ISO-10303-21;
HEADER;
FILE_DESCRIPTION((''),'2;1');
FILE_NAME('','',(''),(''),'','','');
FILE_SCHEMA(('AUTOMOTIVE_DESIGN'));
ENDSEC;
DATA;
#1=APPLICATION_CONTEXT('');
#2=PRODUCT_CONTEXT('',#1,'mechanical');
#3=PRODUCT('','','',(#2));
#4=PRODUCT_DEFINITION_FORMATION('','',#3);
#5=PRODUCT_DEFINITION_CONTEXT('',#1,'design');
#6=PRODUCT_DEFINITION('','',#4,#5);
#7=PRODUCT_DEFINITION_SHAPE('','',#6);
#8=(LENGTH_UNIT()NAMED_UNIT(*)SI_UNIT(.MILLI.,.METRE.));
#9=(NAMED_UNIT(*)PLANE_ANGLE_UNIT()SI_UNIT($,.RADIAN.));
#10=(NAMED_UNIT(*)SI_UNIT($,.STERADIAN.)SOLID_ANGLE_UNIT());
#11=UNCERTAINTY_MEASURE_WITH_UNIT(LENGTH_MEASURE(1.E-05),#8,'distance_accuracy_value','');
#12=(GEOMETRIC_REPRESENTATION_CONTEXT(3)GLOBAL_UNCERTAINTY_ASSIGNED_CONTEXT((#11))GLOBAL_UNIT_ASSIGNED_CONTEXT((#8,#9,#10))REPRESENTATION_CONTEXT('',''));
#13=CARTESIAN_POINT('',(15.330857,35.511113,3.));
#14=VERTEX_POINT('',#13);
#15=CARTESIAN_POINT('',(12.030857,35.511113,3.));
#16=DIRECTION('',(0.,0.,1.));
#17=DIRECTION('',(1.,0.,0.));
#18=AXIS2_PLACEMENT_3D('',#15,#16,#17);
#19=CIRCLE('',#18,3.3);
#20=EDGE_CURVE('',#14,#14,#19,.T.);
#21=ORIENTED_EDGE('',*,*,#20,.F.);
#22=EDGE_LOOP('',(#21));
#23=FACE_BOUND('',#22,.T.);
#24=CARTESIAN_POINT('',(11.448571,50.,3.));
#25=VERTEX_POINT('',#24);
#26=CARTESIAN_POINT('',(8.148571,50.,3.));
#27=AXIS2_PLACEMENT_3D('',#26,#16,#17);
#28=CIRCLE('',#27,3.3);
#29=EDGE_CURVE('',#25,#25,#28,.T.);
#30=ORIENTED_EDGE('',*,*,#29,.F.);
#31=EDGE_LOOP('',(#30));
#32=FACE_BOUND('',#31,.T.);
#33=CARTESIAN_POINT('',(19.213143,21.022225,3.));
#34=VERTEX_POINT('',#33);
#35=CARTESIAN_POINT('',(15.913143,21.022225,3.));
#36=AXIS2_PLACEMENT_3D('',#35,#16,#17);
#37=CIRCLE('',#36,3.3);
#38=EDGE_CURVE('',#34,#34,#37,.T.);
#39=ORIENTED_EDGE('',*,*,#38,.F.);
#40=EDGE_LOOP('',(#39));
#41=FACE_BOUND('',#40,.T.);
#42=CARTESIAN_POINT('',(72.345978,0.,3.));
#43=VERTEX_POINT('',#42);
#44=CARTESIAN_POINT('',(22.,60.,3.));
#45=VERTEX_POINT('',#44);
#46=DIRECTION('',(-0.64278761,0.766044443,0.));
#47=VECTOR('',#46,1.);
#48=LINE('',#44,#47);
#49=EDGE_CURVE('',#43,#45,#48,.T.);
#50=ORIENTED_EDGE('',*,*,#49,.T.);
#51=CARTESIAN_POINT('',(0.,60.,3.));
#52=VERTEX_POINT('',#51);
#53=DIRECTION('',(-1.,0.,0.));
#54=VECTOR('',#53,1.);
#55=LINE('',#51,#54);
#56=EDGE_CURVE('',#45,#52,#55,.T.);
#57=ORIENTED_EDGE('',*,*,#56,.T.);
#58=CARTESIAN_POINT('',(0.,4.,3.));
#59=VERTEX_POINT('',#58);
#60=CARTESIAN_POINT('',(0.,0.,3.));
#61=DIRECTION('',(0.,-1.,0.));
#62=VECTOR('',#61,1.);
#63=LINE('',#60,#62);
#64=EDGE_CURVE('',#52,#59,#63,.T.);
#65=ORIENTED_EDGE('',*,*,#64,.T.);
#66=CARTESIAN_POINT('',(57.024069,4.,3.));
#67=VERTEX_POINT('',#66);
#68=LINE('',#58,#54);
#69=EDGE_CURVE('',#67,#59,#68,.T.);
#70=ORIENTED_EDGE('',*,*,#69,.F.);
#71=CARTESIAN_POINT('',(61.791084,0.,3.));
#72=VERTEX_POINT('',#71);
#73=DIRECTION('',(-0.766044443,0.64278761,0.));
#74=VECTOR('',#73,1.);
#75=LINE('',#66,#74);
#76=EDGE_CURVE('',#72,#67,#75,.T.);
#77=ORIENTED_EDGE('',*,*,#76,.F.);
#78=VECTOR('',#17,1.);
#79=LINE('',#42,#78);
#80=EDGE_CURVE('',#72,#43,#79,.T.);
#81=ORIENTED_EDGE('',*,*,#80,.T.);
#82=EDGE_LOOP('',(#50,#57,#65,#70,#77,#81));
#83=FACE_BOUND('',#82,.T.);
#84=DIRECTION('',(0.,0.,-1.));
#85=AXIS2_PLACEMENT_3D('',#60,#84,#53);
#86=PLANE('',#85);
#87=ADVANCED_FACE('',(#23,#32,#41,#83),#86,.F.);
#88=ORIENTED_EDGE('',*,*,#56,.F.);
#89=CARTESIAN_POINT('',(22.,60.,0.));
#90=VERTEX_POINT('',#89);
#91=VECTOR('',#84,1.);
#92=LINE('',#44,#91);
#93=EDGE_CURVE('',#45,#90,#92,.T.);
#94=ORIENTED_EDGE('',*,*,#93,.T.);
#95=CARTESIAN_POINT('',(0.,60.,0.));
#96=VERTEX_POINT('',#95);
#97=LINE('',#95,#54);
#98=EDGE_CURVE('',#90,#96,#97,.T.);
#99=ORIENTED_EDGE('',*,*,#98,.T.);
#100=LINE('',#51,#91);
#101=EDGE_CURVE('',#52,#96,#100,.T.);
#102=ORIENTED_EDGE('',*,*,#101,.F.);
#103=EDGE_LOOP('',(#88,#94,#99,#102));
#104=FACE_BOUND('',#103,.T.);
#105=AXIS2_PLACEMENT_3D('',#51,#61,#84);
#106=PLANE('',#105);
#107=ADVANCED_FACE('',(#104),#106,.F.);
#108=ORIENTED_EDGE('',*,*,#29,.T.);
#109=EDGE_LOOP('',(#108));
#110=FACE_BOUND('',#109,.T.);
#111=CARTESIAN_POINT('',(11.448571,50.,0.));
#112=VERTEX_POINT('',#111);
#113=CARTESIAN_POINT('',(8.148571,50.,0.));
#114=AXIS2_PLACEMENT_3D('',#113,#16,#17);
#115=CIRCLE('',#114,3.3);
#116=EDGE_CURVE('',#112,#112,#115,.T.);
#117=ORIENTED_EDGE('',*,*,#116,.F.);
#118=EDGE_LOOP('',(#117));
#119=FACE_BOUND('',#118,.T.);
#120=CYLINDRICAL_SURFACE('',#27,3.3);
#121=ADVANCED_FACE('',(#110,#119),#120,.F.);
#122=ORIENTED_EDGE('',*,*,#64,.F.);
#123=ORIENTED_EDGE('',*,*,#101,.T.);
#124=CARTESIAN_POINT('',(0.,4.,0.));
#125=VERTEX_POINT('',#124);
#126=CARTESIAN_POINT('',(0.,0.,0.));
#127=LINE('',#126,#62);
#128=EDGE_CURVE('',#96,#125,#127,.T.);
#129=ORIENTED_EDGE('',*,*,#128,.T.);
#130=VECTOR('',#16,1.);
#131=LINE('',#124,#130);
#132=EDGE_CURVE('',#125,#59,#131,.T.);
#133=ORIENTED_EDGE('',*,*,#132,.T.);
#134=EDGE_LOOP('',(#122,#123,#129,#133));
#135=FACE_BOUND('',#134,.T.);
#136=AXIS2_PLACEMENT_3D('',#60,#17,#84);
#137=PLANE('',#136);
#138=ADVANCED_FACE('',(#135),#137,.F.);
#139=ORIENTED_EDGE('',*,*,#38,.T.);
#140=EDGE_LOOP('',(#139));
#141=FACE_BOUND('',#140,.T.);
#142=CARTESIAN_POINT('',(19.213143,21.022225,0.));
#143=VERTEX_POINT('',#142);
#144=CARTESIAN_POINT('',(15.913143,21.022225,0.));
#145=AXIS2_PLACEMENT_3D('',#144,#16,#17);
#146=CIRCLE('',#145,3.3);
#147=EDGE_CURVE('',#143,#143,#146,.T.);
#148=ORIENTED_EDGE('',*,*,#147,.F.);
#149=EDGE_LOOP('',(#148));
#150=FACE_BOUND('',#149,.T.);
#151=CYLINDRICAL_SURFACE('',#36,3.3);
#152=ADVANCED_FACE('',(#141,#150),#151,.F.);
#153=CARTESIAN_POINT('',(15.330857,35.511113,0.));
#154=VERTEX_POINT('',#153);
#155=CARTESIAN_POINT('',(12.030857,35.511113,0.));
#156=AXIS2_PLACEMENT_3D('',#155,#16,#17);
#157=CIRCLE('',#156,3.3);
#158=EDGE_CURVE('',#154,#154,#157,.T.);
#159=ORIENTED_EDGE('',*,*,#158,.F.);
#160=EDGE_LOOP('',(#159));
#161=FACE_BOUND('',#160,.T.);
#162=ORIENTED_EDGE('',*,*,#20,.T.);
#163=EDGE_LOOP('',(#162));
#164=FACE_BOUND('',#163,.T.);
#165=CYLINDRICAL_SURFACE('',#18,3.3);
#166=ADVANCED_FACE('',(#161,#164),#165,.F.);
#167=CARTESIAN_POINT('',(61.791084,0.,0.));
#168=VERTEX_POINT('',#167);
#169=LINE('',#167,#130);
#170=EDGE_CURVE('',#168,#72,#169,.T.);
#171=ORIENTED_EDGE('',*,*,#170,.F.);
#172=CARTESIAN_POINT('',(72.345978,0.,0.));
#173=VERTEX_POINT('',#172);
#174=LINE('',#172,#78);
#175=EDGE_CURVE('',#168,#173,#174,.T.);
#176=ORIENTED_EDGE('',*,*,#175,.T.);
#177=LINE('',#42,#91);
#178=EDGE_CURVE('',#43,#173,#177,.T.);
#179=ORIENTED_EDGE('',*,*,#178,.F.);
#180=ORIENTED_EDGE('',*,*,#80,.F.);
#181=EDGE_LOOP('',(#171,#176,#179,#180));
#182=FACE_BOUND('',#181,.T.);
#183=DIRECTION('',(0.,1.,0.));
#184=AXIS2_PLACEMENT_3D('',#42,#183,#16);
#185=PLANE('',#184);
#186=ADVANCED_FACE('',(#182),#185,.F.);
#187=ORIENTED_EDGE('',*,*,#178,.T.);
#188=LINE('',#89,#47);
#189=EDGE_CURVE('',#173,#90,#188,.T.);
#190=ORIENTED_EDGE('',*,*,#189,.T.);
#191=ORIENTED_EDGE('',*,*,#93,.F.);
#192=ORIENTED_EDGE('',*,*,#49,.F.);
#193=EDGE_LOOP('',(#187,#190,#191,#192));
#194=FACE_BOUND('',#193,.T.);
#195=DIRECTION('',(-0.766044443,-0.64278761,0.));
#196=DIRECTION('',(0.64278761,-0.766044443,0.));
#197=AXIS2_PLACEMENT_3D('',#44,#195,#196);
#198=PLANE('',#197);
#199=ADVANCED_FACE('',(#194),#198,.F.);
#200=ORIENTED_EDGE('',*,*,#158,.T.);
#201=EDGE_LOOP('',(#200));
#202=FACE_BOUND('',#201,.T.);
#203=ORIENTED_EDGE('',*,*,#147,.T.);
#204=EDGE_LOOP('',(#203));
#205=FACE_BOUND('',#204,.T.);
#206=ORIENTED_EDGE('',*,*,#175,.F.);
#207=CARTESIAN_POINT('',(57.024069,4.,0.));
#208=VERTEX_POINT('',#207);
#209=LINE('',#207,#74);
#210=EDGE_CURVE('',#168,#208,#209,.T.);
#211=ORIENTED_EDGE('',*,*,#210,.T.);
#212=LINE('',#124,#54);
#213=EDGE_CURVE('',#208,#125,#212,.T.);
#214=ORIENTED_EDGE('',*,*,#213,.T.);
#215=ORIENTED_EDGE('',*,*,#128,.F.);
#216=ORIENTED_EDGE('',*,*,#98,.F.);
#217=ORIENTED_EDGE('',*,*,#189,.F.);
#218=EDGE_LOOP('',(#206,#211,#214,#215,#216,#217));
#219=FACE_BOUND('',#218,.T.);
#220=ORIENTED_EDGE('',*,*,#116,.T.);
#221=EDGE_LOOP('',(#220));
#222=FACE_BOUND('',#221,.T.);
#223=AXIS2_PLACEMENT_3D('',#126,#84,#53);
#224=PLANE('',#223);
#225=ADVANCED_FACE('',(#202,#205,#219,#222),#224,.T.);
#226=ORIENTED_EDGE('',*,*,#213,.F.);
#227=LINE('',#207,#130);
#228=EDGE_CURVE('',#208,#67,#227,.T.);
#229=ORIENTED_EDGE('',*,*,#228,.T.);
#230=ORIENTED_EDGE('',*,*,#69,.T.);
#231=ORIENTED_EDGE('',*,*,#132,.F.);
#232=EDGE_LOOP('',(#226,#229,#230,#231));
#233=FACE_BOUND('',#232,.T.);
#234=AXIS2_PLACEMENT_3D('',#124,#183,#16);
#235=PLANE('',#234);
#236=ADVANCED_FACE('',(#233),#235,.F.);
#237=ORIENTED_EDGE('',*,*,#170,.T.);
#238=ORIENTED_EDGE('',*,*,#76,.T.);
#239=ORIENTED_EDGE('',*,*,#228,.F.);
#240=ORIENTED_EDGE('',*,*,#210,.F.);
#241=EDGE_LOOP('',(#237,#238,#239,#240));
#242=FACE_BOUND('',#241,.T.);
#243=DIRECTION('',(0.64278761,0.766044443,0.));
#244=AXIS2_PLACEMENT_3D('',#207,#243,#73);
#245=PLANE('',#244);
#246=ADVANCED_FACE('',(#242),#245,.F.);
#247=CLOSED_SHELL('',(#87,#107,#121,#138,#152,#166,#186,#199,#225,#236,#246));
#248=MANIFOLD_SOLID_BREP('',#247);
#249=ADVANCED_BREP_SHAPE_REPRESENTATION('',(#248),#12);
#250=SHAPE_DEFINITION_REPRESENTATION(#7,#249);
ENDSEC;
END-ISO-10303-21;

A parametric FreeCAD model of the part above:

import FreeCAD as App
import Part
import Sketcher
from FreeCAD import Vector
Q = App.Units.Quantity

doc = App.newDocument("Part")
body = doc.addObject("PartDesign::Body", "Body")

# Sketch on XY plane
sketch1 = body.newObject("Sketcher::SketchObject", "Sketch")
sketch1.AttachmentSupport = (doc.getObject("XY_Plane"), [""])
sketch1.MapMode = "FlatFace"
sketch1.addGeometry(Part.LineSegment(Vector(0, 60, 0), Vector(0, 0, 0)), False)
sketch1.addGeometry(Part.LineSegment(Vector(0, 0, 0), Vector(72, 0, 0)), False)
sketch1.addGeometry(Part.LineSegment(Vector(72, 0, 0), Vector(22, 60, 0)), False)
sketch1.addGeometry(Part.LineSegment(Vector(22, 60, 0), Vector(0, 60, 0)), False)
sketch1.addConstraint(Sketcher.Constraint("Coincident", 0, 2, 1, 1))
sketch1.addConstraint(Sketcher.Constraint("Coincident", 1, 2, 2, 1))
sketch1.addConstraint(Sketcher.Constraint("Coincident", 2, 2, 3, 1))
sketch1.addConstraint(Sketcher.Constraint("Coincident", 3, 2, 0, 1))
sketch1.addConstraint(Sketcher.Constraint("Vertical", 0))
sketch1.addConstraint(Sketcher.Constraint("Horizontal", 1))
sketch1.addConstraint(Sketcher.Constraint("Horizontal", 3))
sketch1.addConstraint(Sketcher.Constraint("Coincident", 0, 2, -1, 1))
sketch1.addConstraint(Sketcher.Constraint("DistanceX", 3, 2, 3, 1, 22.0))
sketch1.addConstraint(Sketcher.Constraint("DistanceY", 0, 2, 0, 1, 60.0))
sketch1.addConstraint(Sketcher.Constraint("Angle", 2, Q("130 deg")))
pad1 = body.newObject("PartDesign::Pad", "Pad")
pad1.Profile = sketch1
pad1.Length = 3

# Sketch on XY plane
sketch2 = body.newObject("Sketcher::SketchObject", "Sketch001")
sketch2.AttachmentSupport = (doc.getObject("XY_Plane"), [""])
sketch2.MapMode = "FlatFace"
sketch2.AttachmentOffset = App.Placement(Vector(0, 0, 3), App.Rotation())
sketch2.addGeometry(Part.Circle(Vector(15.9, 21, 0), Vector(0, 0, 1), 3.3), False)
sketch2.addGeometry(Part.Circle(Vector(12, 35.5, 0), Vector(0, 0, 1), 3.3), False)
sketch2.addGeometry(Part.Circle(Vector(8.1, 50, 0), Vector(0, 0, 1), 3.3), False)
sketch2.addConstraint(Sketcher.Constraint("Equal", 0, 1))
sketch2.addConstraint(Sketcher.Constraint("Equal", 1, 2))
sketch2.addConstraint(Sketcher.Constraint("Diameter", 0, 6.6))
sketch2.addConstraint(Sketcher.Constraint("DistanceY", -1, 1, 2, 3, 50.0))
sketch2.addConstraint(Sketcher.Constraint("DistanceX", -1, 1, 2, 3, 8.148571))
sketch2.addConstraint(Sketcher.Constraint("DistanceX", 2, 3, 0, 3, 7.764571))
sketch2.addConstraint(Sketcher.Constraint("DistanceY", -1, 1, 0, 3, 21.022225))
sketch2.addConstraint(Sketcher.Constraint("DistanceX", -1, 1, 1, 3, 12.030857))
sketch2.addConstraint(Sketcher.Constraint("DistanceY", -1, 1, 1, 3, 35.511113))
doc.recompute()
hole = body.newObject("PartDesign::Hole", "Hole")
hole.Profile = sketch2
hole.ThreadType = "None"
hole.Diameter = 6.6
hole.DepthType = "ThroughAll"

# Sketch on XY plane
sketch3 = body.newObject("Sketcher::SketchObject", "Sketch002")
sketch3.AttachmentSupport = (doc.getObject("XY_Plane"), [""])
sketch3.MapMode = "FlatFace"
sketch3.AttachmentOffset = App.Placement(Vector(0, 0, 3), App.Rotation())
sketch3.addGeometry(Part.LineSegment(Vector(57, 4, 0), Vector(0, 4, 0)), False)
sketch3.addGeometry(Part.LineSegment(Vector(0, 4, 0), Vector(0, 0, 0)), False)
sketch3.addGeometry(Part.LineSegment(Vector(0, 0, 0), Vector(61.8, 0, 0)), False)
sketch3.addGeometry(Part.LineSegment(Vector(61.8, 0, 0), Vector(57, 4, 0)), False)
sketch3.addConstraint(Sketcher.Constraint("Coincident", 0, 2, 1, 1))
sketch3.addConstraint(Sketcher.Constraint("Coincident", 1, 2, 2, 1))
sketch3.addConstraint(Sketcher.Constraint("Coincident", 2, 2, 3, 1))
sketch3.addConstraint(Sketcher.Constraint("Coincident", 3, 2, 0, 1))
sketch3.addConstraint(Sketcher.Constraint("Horizontal", 0))
sketch3.addConstraint(Sketcher.Constraint("Vertical", 1))
sketch3.addConstraint(Sketcher.Constraint("Horizontal", 2))
sketch3.addConstraint(Sketcher.Constraint("Coincident", 1, 2, -1, 1))
sketch3.addConstraint(Sketcher.Constraint("DistanceY", 1, 2, 1, 1, 4.0))
sketch3.addConstraint(Sketcher.Constraint("Angle", 3, Q("140 deg")))
sketch3.addConstraint(Sketcher.Constraint("DistanceX", 0, 2, 0, 1, 57.024069))
pocket1 = body.newObject("PartDesign::Pocket", "Pocket")
pocket1.Profile = sketch3
pocket1.Type = "ThroughAll"

doc.recompute()
